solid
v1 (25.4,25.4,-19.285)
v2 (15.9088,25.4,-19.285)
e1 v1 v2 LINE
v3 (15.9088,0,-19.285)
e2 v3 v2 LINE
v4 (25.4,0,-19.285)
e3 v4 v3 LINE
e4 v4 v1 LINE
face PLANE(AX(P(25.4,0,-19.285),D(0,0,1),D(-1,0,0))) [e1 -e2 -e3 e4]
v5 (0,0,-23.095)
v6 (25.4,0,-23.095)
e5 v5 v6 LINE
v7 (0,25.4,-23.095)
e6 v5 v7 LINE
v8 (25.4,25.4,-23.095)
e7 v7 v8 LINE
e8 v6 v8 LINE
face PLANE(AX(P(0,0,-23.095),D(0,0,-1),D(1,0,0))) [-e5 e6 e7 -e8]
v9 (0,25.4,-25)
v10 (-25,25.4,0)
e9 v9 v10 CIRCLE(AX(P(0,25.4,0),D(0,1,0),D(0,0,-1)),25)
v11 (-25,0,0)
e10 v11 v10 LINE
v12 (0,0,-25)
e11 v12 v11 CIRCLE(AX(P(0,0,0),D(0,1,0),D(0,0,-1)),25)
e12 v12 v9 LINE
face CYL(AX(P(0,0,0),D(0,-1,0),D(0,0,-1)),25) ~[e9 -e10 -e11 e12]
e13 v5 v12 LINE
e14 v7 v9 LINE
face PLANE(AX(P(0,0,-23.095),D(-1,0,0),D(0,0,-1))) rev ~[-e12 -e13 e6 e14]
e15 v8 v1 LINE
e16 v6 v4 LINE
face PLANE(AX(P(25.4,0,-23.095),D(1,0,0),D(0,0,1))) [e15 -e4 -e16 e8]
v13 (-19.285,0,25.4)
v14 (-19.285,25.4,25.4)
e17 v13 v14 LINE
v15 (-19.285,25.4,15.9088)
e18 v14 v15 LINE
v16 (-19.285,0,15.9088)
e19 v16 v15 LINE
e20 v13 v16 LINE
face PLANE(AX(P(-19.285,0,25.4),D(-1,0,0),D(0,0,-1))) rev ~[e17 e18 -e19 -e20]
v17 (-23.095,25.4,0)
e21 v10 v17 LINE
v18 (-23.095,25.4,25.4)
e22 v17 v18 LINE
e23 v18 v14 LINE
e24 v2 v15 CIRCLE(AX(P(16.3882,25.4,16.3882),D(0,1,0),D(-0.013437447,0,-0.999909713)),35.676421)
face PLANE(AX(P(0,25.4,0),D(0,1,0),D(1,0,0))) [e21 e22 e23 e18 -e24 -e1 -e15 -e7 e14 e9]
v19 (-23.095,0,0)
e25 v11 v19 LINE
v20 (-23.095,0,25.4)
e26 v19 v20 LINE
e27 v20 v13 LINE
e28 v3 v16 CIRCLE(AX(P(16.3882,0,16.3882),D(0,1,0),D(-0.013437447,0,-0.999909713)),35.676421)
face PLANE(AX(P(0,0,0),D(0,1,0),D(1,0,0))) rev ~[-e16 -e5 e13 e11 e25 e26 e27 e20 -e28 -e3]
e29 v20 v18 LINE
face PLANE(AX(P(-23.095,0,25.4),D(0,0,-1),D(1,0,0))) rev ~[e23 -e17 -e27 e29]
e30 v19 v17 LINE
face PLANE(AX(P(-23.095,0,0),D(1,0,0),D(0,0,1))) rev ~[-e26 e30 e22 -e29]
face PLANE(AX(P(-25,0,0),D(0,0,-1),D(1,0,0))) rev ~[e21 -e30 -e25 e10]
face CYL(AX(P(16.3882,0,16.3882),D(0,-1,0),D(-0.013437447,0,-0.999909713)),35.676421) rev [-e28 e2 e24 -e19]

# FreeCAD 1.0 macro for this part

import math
import FreeCAD as App
import Part
import Sketcher
from FreeCAD import Vector
Q = App.Units.Quantity

doc = App.newDocument("Part")
body = doc.addObject("PartDesign::Body", "Body")

# Sketch on XZ plane
sketch1 = body.newObject("Sketcher::SketchObject", "Sketch")
sketch1.AttachmentSupport = (doc.getObject("XZ_Plane"), [""])
sketch1.MapMode = "FlatFace"
sketch1.addGeometry(Part.ArcOfCircle(Part.Circle(Vector(0, 0, 0), Vector(0, 0, 1), 25), math.radians(180), math.radians(270)), False)
sketch1.addGeometry(Part.LineSegment(Vector(-25, 0, 0), Vector(-23.1, 0, 0)), False)
sketch1.addGeometry(Part.LineSegment(Vector(-23.1, 0, 0), Vector(-23.1, 25.4, 0)), False)
sketch1.addGeometry(Part.LineSegment(Vector(-23.1, 25.4, 0), Vector(-19.3, 25.4, 0)), False)
sketch1.addGeometry(Part.LineSegment(Vector(-19.3, 25.4, 0), Vector(-19.3, 15.9, 0)), False)
sketch1.addGeometry(Part.ArcOfCircle(Part.Circle(Vector(16.4, 16.4, 0), Vector(0, 0, 1), 35.7), math.radians(-179), math.radians(-91)), False)
sketch1.addGeometry(Part.LineSegment(Vector(15.9, -19.3, 0), Vector(25.4, -19.3, 0)), False)
sketch1.addGeometry(Part.LineSegment(Vector(25.4, -19.3, 0), Vector(25.4, -23.1, 0)), False)
sketch1.addGeometry(Part.LineSegment(Vector(25.4, -23.1, 0), Vector(0, -23.1, 0)), False)
sketch1.addGeometry(Part.LineSegment(Vector(0, -23.1, 0), Vector(0, -25, 0)), False)
sketch1.addConstraint(Sketcher.Constraint("Coincident", 0, 1, 1, 1))
sketch1.addConstraint(Sketcher.Constraint("Coincident", 1, 2, 2, 1))
sketch1.addConstraint(Sketcher.Constraint("Coincident", 2, 2, 3, 1))
sketch1.addConstraint(Sketcher.Constraint("Coincident", 3, 2, 4, 1))
sketch1.addConstraint(Sketcher.Constraint("Coincident", 4, 2, 5, 1))
sketch1.addConstraint(Sketcher.Constraint("Coincident", 5, 2, 6, 1))
sketch1.addConstraint(Sketcher.Constraint("Coincident", 6, 2, 7, 1))
sketch1.addConstraint(Sketcher.Constraint("Coincident", 7, 2, 8, 1))
sketch1.addConstraint(Sketcher.Constraint("Coincident", 8, 2, 9, 1))
sketch1.addConstraint(Sketcher.Constraint("Coincident", 9, 2, 0, 2))
sketch1.addConstraint(Sketcher.Constraint("Horizontal", 1))
sketch1.addConstraint(Sketcher.Constraint("Vertical", 2))
sketch1.addConstraint(Sketcher.Constraint("Horizontal", 3))
sketch1.addConstraint(Sketcher.Constraint("Vertical", 4))
sketch1.addConstraint(Sketcher.Constraint("Horizontal", 6))
sketch1.addConstraint(Sketcher.Constraint("Vertical", 7))
sketch1.addConstraint(Sketcher.Constraint("Horizontal", 8))
sketch1.addConstraint(Sketcher.Constraint("Vertical", 9))
sketch1.addConstraint(Sketcher.Constraint("Coincident", 0, 3, -1, 1))
sketch1.addConstraint(Sketcher.Constraint("PointOnObject", 0, 1, -1))
sketch1.addConstraint(Sketcher.Constraint("PointOnObject", 8, 2, -2))
sketch1.addConstraint(Sketcher.Constraint("Equal", 8, 2))
sketch1.addConstraint(Sketcher.Constraint("Equal", 6, 4))
sketch1.addConstraint(Sketcher.Constraint("Equal", 3, 7))
sketch1.addConstraint(Sketcher.Constraint("Equal", 1, 9))
sketch1.addConstraint(Sketcher.Constraint("DistanceX", 8, 2, 8, 1, Q("1 in")))
sketch1.addConstraint(Sketcher.Constraint("DistanceX", 3, 1, 3, 2, Q("0.15 in")))
sketch1.addConstraint(Sketcher.Constraint("DistanceX", 1, 1, 1, 2, Q("0.075 in")))
sketch1.addConstraint(Sketcher.Constraint("Radius", 0, Q("25 mm")))
sketch1.addConstraint(Sketcher.Constraint("Radius", 5, Q("35.6764 mm")))
sketch1.addConstraint(Sketcher.Constraint("DistanceX", 6, 1, 6, 2, Q("9.4912 mm")))
pad1 = body.newObject("PartDesign::Pad", "Pad")
pad1.Profile = sketch1
pad1.Length = Q("1 in")
pad1.Reversed = True

doc.recompute()
